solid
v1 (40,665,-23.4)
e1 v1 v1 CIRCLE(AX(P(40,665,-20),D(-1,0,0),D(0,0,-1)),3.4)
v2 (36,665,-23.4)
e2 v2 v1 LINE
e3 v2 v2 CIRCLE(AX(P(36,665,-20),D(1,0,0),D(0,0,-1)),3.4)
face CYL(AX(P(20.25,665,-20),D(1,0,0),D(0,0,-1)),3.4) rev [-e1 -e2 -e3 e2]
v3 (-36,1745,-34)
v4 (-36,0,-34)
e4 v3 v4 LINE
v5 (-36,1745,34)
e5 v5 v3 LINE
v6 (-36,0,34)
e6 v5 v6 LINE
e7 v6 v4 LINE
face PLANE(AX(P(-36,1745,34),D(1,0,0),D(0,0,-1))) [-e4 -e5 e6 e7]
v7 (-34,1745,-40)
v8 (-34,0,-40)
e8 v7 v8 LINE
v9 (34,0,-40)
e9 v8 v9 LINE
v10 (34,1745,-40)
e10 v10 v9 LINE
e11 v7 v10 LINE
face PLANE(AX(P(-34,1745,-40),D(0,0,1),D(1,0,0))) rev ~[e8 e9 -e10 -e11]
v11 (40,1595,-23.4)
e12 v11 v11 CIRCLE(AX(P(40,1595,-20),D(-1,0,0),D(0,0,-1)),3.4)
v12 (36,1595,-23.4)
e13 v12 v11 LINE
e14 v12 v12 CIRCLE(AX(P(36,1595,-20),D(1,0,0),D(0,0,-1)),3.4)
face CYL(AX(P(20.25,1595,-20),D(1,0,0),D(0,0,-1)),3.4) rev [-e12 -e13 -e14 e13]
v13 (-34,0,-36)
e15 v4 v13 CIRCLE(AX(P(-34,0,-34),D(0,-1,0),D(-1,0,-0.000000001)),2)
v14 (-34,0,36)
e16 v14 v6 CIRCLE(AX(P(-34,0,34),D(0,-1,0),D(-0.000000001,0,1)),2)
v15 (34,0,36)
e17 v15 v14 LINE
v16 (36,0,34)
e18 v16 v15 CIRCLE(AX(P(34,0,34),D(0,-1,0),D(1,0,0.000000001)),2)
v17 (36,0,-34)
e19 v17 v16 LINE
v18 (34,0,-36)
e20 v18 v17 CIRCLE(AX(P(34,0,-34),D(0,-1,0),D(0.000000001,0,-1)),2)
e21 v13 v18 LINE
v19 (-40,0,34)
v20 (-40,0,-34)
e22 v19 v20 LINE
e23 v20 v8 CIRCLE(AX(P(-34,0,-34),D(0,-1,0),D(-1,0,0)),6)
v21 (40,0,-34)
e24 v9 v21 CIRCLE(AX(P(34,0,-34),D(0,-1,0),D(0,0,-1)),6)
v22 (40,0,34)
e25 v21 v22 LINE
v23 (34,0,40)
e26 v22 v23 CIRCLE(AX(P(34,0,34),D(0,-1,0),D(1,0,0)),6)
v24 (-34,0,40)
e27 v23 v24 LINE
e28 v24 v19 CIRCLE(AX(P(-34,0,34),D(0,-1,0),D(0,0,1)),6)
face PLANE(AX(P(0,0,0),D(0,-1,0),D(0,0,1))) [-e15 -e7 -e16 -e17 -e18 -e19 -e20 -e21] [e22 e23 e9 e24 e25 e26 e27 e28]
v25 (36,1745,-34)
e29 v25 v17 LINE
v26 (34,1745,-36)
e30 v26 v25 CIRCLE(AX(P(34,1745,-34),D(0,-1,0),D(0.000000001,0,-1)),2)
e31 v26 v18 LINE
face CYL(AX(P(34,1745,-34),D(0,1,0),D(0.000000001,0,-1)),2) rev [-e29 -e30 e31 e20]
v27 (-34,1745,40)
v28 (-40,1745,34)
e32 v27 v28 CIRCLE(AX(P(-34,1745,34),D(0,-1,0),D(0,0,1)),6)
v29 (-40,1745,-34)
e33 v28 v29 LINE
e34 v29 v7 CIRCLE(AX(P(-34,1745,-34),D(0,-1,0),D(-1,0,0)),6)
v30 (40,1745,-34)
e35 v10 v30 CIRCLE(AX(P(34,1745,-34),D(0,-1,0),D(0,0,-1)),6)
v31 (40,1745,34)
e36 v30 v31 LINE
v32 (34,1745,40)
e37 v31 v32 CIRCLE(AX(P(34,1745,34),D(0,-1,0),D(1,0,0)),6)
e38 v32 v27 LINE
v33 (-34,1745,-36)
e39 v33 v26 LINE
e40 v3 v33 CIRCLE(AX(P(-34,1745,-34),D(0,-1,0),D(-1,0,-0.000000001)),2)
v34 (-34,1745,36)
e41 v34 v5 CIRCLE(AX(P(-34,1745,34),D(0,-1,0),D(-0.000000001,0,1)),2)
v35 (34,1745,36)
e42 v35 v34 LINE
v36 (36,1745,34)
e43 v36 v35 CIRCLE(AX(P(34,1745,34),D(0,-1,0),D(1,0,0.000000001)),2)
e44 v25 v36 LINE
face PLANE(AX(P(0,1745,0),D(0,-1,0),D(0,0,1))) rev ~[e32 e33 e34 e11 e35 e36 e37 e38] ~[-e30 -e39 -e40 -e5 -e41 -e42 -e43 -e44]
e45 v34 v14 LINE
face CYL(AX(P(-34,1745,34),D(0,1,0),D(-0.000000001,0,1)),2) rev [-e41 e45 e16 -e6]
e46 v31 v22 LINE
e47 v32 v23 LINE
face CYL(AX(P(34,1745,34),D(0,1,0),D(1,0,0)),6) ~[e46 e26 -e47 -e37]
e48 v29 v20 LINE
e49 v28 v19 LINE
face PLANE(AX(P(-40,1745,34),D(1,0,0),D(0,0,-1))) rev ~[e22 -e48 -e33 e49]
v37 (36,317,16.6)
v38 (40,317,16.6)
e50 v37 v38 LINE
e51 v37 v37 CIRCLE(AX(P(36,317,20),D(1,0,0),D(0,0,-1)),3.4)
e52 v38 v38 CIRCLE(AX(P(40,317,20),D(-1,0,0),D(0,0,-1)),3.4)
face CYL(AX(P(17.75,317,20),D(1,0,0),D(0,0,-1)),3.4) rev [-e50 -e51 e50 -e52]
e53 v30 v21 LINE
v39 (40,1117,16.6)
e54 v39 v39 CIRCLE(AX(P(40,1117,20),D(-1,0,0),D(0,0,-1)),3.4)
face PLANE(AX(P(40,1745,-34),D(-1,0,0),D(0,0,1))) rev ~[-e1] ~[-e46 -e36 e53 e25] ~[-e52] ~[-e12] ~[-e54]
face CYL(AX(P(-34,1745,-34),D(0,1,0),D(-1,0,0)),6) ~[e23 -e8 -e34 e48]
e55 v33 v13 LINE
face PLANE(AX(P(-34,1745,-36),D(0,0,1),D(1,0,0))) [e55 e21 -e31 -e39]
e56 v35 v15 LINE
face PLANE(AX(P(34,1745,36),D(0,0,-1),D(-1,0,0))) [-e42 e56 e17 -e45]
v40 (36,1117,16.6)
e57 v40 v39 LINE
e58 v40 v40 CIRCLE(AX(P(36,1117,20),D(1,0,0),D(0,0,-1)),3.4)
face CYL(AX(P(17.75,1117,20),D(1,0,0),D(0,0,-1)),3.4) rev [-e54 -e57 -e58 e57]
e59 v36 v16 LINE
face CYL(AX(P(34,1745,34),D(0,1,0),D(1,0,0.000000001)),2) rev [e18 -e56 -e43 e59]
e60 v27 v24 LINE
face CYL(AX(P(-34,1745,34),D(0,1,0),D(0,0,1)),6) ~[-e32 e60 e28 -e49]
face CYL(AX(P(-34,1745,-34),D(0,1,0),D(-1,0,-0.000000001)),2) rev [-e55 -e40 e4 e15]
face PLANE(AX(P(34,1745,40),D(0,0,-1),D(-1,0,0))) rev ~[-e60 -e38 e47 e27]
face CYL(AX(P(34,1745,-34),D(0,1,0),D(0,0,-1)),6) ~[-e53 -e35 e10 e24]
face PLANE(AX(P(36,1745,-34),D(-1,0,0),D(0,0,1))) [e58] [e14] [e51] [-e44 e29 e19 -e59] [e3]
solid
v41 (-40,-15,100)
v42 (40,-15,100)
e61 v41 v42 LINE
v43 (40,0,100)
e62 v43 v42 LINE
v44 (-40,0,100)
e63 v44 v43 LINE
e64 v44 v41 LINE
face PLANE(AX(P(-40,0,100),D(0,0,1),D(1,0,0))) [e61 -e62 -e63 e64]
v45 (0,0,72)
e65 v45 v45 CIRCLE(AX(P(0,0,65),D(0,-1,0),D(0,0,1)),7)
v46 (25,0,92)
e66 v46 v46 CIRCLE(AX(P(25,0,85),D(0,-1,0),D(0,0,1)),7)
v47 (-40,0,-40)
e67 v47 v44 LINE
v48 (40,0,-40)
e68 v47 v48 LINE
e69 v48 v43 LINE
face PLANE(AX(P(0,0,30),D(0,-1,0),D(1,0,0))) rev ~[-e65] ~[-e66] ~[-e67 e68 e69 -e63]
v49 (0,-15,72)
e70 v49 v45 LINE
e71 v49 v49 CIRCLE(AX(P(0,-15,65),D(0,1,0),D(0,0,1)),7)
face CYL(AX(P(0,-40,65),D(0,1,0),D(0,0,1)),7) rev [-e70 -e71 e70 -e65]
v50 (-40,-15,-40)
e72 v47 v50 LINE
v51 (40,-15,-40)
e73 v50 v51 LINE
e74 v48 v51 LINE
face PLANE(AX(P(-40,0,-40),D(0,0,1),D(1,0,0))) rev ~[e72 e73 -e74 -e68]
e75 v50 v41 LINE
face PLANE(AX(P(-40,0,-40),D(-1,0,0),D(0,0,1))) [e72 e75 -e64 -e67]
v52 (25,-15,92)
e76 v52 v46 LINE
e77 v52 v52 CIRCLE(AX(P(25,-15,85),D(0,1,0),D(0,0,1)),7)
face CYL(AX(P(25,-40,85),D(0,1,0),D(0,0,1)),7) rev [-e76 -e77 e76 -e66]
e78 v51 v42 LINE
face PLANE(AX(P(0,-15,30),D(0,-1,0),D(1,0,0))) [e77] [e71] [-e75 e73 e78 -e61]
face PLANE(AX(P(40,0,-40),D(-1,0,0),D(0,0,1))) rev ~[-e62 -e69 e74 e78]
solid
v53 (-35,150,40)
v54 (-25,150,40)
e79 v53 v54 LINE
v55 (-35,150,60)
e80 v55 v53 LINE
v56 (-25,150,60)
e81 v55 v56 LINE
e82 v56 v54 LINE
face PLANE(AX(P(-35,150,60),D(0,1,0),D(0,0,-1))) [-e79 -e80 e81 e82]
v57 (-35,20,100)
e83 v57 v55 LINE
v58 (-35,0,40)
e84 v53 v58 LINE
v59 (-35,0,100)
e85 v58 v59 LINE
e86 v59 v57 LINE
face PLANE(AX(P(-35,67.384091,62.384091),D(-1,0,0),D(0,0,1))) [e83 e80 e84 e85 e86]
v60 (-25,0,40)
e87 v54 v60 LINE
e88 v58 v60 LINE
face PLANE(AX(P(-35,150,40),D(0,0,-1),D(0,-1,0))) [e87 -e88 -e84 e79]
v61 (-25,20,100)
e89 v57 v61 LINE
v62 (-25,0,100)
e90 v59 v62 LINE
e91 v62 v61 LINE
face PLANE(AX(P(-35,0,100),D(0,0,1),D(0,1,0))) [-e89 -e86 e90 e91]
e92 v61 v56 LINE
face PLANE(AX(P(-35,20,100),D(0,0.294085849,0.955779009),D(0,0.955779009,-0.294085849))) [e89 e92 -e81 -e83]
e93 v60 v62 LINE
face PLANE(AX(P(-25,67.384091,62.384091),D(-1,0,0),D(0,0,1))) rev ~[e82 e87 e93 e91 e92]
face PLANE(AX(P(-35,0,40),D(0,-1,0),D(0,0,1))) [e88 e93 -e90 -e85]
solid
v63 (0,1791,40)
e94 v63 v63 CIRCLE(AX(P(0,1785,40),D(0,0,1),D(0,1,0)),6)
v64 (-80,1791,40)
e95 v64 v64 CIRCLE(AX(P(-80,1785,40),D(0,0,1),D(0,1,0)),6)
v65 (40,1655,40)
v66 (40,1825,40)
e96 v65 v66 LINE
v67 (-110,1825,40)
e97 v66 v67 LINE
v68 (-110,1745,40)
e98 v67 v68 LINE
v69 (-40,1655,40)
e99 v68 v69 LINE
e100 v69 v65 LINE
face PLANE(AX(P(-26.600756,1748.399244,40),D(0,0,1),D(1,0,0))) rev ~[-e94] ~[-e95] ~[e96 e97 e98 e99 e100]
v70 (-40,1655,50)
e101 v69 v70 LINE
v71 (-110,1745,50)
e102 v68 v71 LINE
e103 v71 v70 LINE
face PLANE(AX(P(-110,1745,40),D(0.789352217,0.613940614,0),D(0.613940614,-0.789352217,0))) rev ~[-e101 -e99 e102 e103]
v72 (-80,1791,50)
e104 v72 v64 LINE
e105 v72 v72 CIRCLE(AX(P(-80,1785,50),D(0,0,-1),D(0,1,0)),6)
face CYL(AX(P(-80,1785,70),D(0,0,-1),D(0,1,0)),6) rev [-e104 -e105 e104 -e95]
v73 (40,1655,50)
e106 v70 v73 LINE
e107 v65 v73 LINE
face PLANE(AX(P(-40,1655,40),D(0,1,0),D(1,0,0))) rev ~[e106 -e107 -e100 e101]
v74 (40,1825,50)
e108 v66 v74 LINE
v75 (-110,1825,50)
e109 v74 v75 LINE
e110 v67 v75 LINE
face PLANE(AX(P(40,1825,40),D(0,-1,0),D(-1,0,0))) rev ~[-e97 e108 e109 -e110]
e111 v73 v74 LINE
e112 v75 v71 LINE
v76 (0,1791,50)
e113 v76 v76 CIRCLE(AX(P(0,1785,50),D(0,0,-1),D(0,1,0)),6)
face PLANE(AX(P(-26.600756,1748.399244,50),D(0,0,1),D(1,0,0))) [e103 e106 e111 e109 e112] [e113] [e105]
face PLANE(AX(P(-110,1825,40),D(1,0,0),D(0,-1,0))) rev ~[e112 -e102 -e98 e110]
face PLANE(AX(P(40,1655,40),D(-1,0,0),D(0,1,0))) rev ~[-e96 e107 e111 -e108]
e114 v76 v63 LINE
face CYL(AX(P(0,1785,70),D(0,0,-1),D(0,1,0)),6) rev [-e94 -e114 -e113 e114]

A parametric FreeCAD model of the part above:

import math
import FreeCAD as App
import Part
import Sketcher
Q = App.Units.Quantity

doc = App.newDocument("Part")
params = doc.addObject("Spreadsheet::Sheet", "Params")
for row, (alias, value) in enumerate([
    ("sketch1_radius", "6 mm"),
    ("sketch1_radius2", "2 mm"),
    ("sketch1_width", "68 mm"),
    ("pad1_length", "1745 mm"),
    ("sketch2_height", "3.4 mm"),
    ("sketch2_width", "19.75 mm"),
    ("groove_angle", "360 deg"),
    ("linearpattern_pitch", "930 mm"),
    ("sketch3_height", "3.4 mm"),
    ("sketch3_width", "22.25 mm"),
    ("groove2_angle", "360 deg"),
    ("linearpattern2_pitch", "800 mm"),
    ("sketch4_width", "80 mm"),
    ("sketch4_height", "140 mm"),
    ("pad2_length", "15 mm"),
    ("sketch5_width", "40 mm"),
    ("sketch5_height", "7 mm"),
    ("groove3_angle", "360 deg"),
    ("linearpattern3_pitch", "32.015621 mm"),
    ("sketch6_width", "20 mm"),
    ("sketch6_width2", "150 mm"),
    ("sketch6_height", "60 mm"),
    ("pad3_length", "10 mm"),
    ("sketch7_width", "150 mm"),
    ("sketch7_width2", "80 mm"),
    ("sketch7_height", "170 mm"),
    ("pad4_length", "10 mm"),
    ("sketch8_width", "6 mm"),
    ("sketch8_height", "30 mm"),
    ("groove4_angle", "360 deg"),
    ("linearpattern4_pitch", "80 mm"),
], start=1):
    params.set(f"A{row}", alias)
    params.set(f"B{row}", "=" + value)
    params.setAlias(f"B{row}", alias)

body = doc.addObject("PartDesign::Body", "Body")

sketch1 = doc.addObject("Sketcher::SketchObject", "Sketch")
body.addObject(sketch1)
sketch1.AttachmentSupport = (doc.XZ_Plane, [""])
sketch1.MapMode = "FlatFace"
sketch1.AttachmentOffset = App.Placement(App.Vector(0, 0, -1745), App.Rotation())
sketch1.addGeometry(Part.LineSegment(App.Vector(40, -34, 0), App.Vector(40, 34, 0)), False)
sketch1.addGeometry(Part.ArcOfCircle(Part.Circle(App.Vector(34, 34, 0), App.Vector(0, 0, 1), 6), math.radians(0), math.radians(90)), False)
sketch1.addGeometry(Part.LineSegment(App.Vector(34, 40, 0), App.Vector(-34, 40, 0)), False)
sketch1.addGeometry(Part.ArcOfCircle(Part.Circle(App.Vector(-34, 34, 0), App.Vector(0, 0, 1), 6), math.radians(90), math.radians(180)), False)
sketch1.addGeometry(Part.LineSegment(App.Vector(-40, 34, 0), App.Vector(-40, -34, 0)), False)
sketch1.addGeometry(Part.ArcOfCircle(Part.Circle(App.Vector(-34, -34, 0), App.Vector(0, 0, 1), 6), math.radians(180), math.radians(270)), False)
sketch1.addGeometry(Part.LineSegment(App.Vector(-34, -40, 0), App.Vector(34, -40, 0)), False)
sketch1.addGeometry(Part.ArcOfCircle(Part.Circle(App.Vector(34, -34, 0), App.Vector(0, 0, 1), 6), math.radians(-90), math.radians(0)), False)
sketch1.addGeometry(Part.LineSegment(App.Vector(36, 34, 0), App.Vector(36, -34, 0)), False)
sketch1.addGeometry(Part.ArcOfCircle(Part.Circle(App.Vector(34, -34, 0), App.Vector(0, 0, 1), 2), math.radians(-90), math.radians(0)), False)
sketch1.addGeometry(Part.LineSegment(App.Vector(34, -36, 0), App.Vector(-34, -36, 0)), False)
sketch1.addGeometry(Part.ArcOfCircle(Part.Circle(App.Vector(-34, -34, 0), App.Vector(0, 0, 1), 2), math.radians(-180), math.radians(-90)), False)
sketch1.addGeometry(Part.LineSegment(App.Vector(-36, -34, 0), App.Vector(-36, 34, 0)), False)
sketch1.addGeometry(Part.ArcOfCircle(Part.Circle(App.Vector(-34, 34, 0), App.Vector(0, 0, 1), 2), math.radians(90), math.radians(180)), False)
sketch1.addGeometry(Part.LineSegment(App.Vector(-34, 36, 0), App.Vector(34, 36, 0)), False)
sketch1.addGeometry(Part.ArcOfCircle(Part.Circle(App.Vector(34, 34, 0), App.Vector(0, 0, 1), 2), math.radians(0), math.radians(90)), False)
sketch1.addConstraint(Sketcher.Constraint("Tangent", 0, 2, 1, 1))
sketch1.addConstraint(Sketcher.Constraint("Tangent", 1, 2, 2, 1))
sketch1.addConstraint(Sketcher.Constraint("Tangent", 2, 2, 3, 1))
sketch1.addConstraint(Sketcher.Constraint("Tangent", 3, 2, 4, 1))
sketch1.addConstraint(Sketcher.Constraint("Tangent", 4, 2, 5, 1))
sketch1.addConstraint(Sketcher.Constraint("Tangent", 5, 2, 6, 1))
sketch1.addConstraint(Sketcher.Constraint("Tangent", 6, 2, 7, 1))
sketch1.addConstraint(Sketcher.Constraint("Tangent", 7, 2, 0, 1))
sketch1.addConstraint(Sketcher.Constraint("Tangent", 8, 2, 9, 2))
sketch1.addConstraint(Sketcher.Constraint("Tangent", 9, 1, 10, 1))
sketch1.addConstraint(Sketcher.Constraint("Tangent", 10, 2, 11, 2))
sketch1.addConstraint(Sketcher.Constraint("Tangent", 11, 1, 12, 1))
sketch1.addConstraint(Sketcher.Constraint("Tangent", 12, 2, 13, 2))
sketch1.addConstraint(Sketcher.Constraint("Tangent", 13, 1, 14, 1))
sketch1.addConstraint(Sketcher.Constraint("Tangent", 14, 2, 15, 2))
sketch1.addConstraint(Sketcher.Constraint("Tangent", 15, 1, 8, 1))
sketch1.addConstraint(Sketcher.Constraint("Vertical", 0))
sketch1.addConstraint(Sketcher.Constraint("Horizontal", 2))
sketch1.addConstraint(Sketcher.Constraint("Vertical", 4))
sketch1.addConstraint(Sketcher.Constraint("Horizontal", 6))
sketch1.addConstraint(Sketcher.Constraint("Vertical", 8))
sketch1.addConstraint(Sketcher.Constraint("Horizontal", 10))
sketch1.addConstraint(Sketcher.Constraint("Vertical", 12))
sketch1.addConstraint(Sketcher.Constraint("Horizontal", 14))
sketch1.addConstraint(Sketcher.Constraint("Coincident", 9, 3, 7, 3))
sketch1.addConstraint(Sketcher.Constraint("Coincident", 11, 3, 5, 3))
sketch1.addConstraint(Sketcher.Constraint("Coincident", 13, 3, 3, 3))
sketch1.addConstraint(Sketcher.Constraint("Equal", 1, 3))
sketch1.addConstraint(Sketcher.Constraint("Equal", 3, 5))
sketch1.addConstraint(Sketcher.Constraint("Equal", 5, 7))
sketch1.addConstraint(Sketcher.Constraint("Equal", 13, 15))
sketch1.addConstraint(Sketcher.Constraint("Symmetric", 1, 3, 5, 3, -1, 1))
sketch1.addConstraint(Sketcher.Constraint("Equal", 14, 0))
sketch1.addConstraint(Sketcher.Constraint("Radius", 1, Q("6 mm")))
sketch1.addConstraint(Sketcher.Constraint("Radius", 9, Q("2 mm")))
sketch1.addConstraint(Sketcher.Constraint("DistanceX", 2, 2, 2, 1, Q("68 mm")))
sketch1.setExpression("Constraints[33]", "Params.sketch1_radius")
sketch1.setExpression("Constraints[34]", "Params.sketch1_radius2")
sketch1.setExpression("Constraints[35]", "Params.sketch1_width")
pad1 = doc.addObject("PartDesign::Pad", "Pad")
body.addObject(pad1)
pad1.Profile = sketch1
pad1.setExpression("Length", "Params.pad1_length")

sketch2 = doc.addObject("Sketcher::SketchObject", "Sketch001")
body.addObject(sketch2)
sketch2.AttachmentSupport = (doc.XZ_Plane, [""])
sketch2.MapMode = "FlatFace"
sketch2.AttachmentOffset = App.Placement(App.Vector(0, 0, -1595), App.Rotation())
sketch2.addGeometry(Part.LineSegment(App.Vector(18.2, -20, 0), App.Vector(40, -20, 0)), False)
sketch2.addGeometry(Part.LineSegment(App.Vector(40, -20, 0), App.Vector(40, -23.4, 0)), False)
sketch2.addGeometry(Part.LineSegment(App.Vector(40, -23.4, 0), App.Vector(20.2, -23.4, 0)), False)
sketch2.addGeometry(Part.LineSegment(App.Vector(20.2, -23.4, 0), App.Vector(18.2, -20, 0)), False)
sketch2.addGeometry(Part.LineSegment(App.Vector(40, -20, 0), App.Vector(18.2, -20, 0)), True)
sketch2.addConstraint(Sketcher.Constraint("Coincident", 0, 2, 1, 1))
sketch2.addConstraint(Sketcher.Constraint("Coincident", 1, 2, 2, 1))
sketch2.addConstraint(Sketcher.Constraint("Coincident", 2, 2, 3, 1))
sketch2.addConstraint(Sketcher.Constraint("Coincident", 3, 2, 0, 1))
sketch2.addConstraint(Sketcher.Constraint("Horizontal", 0))
sketch2.addConstraint(Sketcher.Constraint("Vertical", 1))
sketch2.addConstraint(Sketcher.Constraint("Horizontal", 2))
sketch2.addConstraint(Sketcher.Constraint("Horizontal", 4))
sketch2.addConstraint(Sketcher.Constraint("Coincident", 4, 1, 0, 2))
sketch2.addConstraint(Sketcher.Constraint("Equal", 0, 4))
sketch2.addConstraint(Sketcher.Constraint("Angle", 3, Q("121 deg")))
sketch2.addConstraint(Sketcher.Constraint("DistanceY", 1, 2, 1, 1, Q("3.4 mm")))
sketch2.addConstraint(Sketcher.Constraint("DistanceX", -1, 1, 0, 2, Q("40 mm")))
sketch2.addConstraint(Sketcher.Constraint("DistanceY", 0, 2, -1, 1, Q("20 mm")))
sketch2.addConstraint(Sketcher.Constraint("DistanceX", 2, 2, 2, 1, Q("19.75 mm")))
sketch2.setExpression("Constraints[11]", "Params.sketch2_height")
sketch2.setExpression("Constraints[14]", "Params.sketch2_width")
groove = doc.addObject("PartDesign::Groove", "Groove")
body.addObject(groove)
groove.Profile = sketch2
groove.ReferenceAxis = (sketch2, ["Axis0"])
groove.setExpression("Angle", "Params.groove_angle")
doc.recompute()

linearpattern = doc.addObject("PartDesign::LinearPattern", "LinearPattern")
body.addObject(linearpattern)
linearpattern.Originals = [groove]
linearpattern.Direction = (doc.Y_Axis, [""])
linearpattern.Mode = "offset"
linearpattern.setExpression("Offset", "Params.linearpattern_pitch")
linearpattern.Occurrences = 2
linearpattern.Reversed = True
body.Tip = linearpattern

sketch3 = doc.addObject("Sketcher::SketchObject", "Sketch002")
body.addObject(sketch3)
sketch3.AttachmentSupport = (doc.XZ_Plane, [""])
sketch3.MapMode = "FlatFace"
sketch3.AttachmentOffset = App.Placement(App.Vector(0, 0, -1117), App.Rotation())
sketch3.addGeometry(Part.LineSegment(App.Vector(15.7, 20, 0), App.Vector(40, 20, 0)), False)
sketch3.addGeometry(Part.LineSegment(App.Vector(40, 20, 0), App.Vector(40, 16.6, 0)), False)
sketch3.addGeometry(Part.LineSegment(App.Vector(40, 16.6, 0), App.Vector(17.8, 16.6, 0)), False)
sketch3.addGeometry(Part.LineSegment(App.Vector(17.8, 16.6, 0), App.Vector(15.7, 20, 0)), False)
sketch3.addGeometry(Part.LineSegment(App.Vector(40, 20, 0), App.Vector(15.7, 20, 0)), True)
sketch3.addConstraint(Sketcher.Constraint("Coincident", 0, 2, 1, 1))
sketch3.addConstraint(Sketcher.Constraint("Coincident", 1, 2, 2, 1))
sketch3.addConstraint(Sketcher.Constraint("Coincident", 2, 2, 3, 1))
sketch3.addConstraint(Sketcher.Constraint("Coincident", 3, 2, 0, 1))
sketch3.addConstraint(Sketcher.Constraint("Horizontal", 0))
sketch3.addConstraint(Sketcher.Constraint("Vertical", 1))
sketch3.addConstraint(Sketcher.Constraint("Horizontal", 2))
sketch3.addConstraint(Sketcher.Constraint("Horizontal", 4))
sketch3.addConstraint(Sketcher.Constraint("Coincident", 4, 1, 0, 2))
sketch3.addConstraint(Sketcher.Constraint("Equal", 0, 4))
sketch3.addConstraint(Sketcher.Constraint("Angle", 3, Q("121 deg")))
sketch3.addConstraint(Sketcher.Constraint("DistanceY", 1, 2, 1, 1, Q("3.4 mm")))
sketch3.addConstraint(Sketcher.Constraint("DistanceX", -1, 1, 0, 2, Q("40 mm")))
sketch3.addConstraint(Sketcher.Constraint("DistanceY", -1, 1, 0, 2, Q("20 mm")))
sketch3.addConstraint(Sketcher.Constraint("DistanceX", 2, 2, 2, 1, Q("22.25 mm")))
sketch3.setExpression("Constraints[11]", "Params.sketch3_height")
sketch3.setExpression("Constraints[14]", "Params.sketch3_width")
groove2 = doc.addObject("PartDesign::Groove", "Groove001")
body.addObject(groove2)
groove2.Profile = sketch3
groove2.ReferenceAxis = (sketch3, ["Axis0"])
groove2.setExpression("Angle", "Params.groove2_angle")
doc.recompute()

linearpattern2 = doc.addObject("PartDesign::LinearPattern", "LinearPattern001")
body.addObject(linearpattern2)
linearpattern2.Originals = [groove2]
linearpattern2.Direction = (doc.Y_Axis, [""])
linearpattern2.Mode = "offset"
linearpattern2.setExpression("Offset", "Params.linearpattern2_pitch")
linearpattern2.Occurrences = 2
linearpattern2.Reversed = True
body.Tip = linearpattern2
body2 = doc.addObject("PartDesign::Body", "Body001")

sketch4 = doc.addObject("Sketcher::SketchObject", "Sketch003")
body2.addObject(sketch4)
sketch4.AttachmentSupport = (doc.getObject("XZ_Plane001"), [""])
sketch4.MapMode = "FlatFace"
sketch4.addGeometry(Part.LineSegment(App.Vector(-40, 100, 0), App.Vector(-40, -40, 0)), False)
sketch4.addGeometry(Part.LineSegment(App.Vector(-40, -40, 0), App.Vector(40, -40, 0)), False)
sketch4.addGeometry(Part.LineSegment(App.Vector(40, -40, 0), App.Vector(40, 100, 0)), False)
sketch4.addGeometry(Part.LineSegment(App.Vector(40, 100, 0), App.Vector(-40, 100, 0)), False)
sketch4.addConstraint(Sketcher.Constraint("Coincident", 0, 2, 1, 1))
sketch4.addConstraint(Sketcher.Constraint("Coincident", 1, 2, 2, 1))
sketch4.addConstraint(Sketcher.Constraint("Coincident", 2, 2, 3, 1))
sketch4.addConstraint(Sketcher.Constraint("Coincident", 3, 2, 0, 1))
sketch4.addConstraint(Sketcher.Constraint("Vertical", 0))
sketch4.addConstraint(Sketcher.Constraint("Horizontal", 1))
sketch4.addConstraint(Sketcher.Constraint("Vertical", 2))
sketch4.addConstraint(Sketcher.Constraint("Horizontal", 3))
sketch4.addConstraint(Sketcher.Constraint("DistanceX", 1, 1, 1, 2, Q("80 mm")))
sketch4.addConstraint(Sketcher.Constraint("DistanceY", 0, 2, 0, 1, Q("140 mm")))
sketch4.addConstraint(Sketcher.Constraint("DistanceX", 0, 2, -1, 1, Q("40 mm")))
sketch4.addConstraint(Sketcher.Constraint("DistanceY", 0, 2, -1, 1, Q("40 mm")))
sketch4.setExpression("Constraints[8]", "Params.sketch4_width")
sketch4.setExpression("Constraints[9]", "Params.sketch4_height")
pad2 = doc.addObject("PartDesign::Pad", "Pad001")
body2.addObject(pad2)
pad2.Profile = sketch4
pad2.setExpression("Length", "Params.pad2_length")

sketch5 = doc.addObject("Sketcher::SketchObject", "Sketch004")
body2.addObject(sketch5)
sketch5.AttachmentSupport = (doc.getObject("YZ_Plane001"), [""])
sketch5.MapMode = "FlatFace"
sketch5.AttachmentOffset = App.Placement(App.Vector(0, 0, 25), App.Rotation())
sketch5.addGeometry(Part.LineSegment(App.Vector(-44, 85, 0), App.Vector(0, 85, 0)), False)
sketch5.addGeometry(Part.LineSegment(App.Vector(0, 85, 0), App.Vector(0, 92, 0)), False)
sketch5.addGeometry(Part.LineSegment(App.Vector(0, 92, 0), App.Vector(-40, 92, 0)), False)
sketch5.addGeometry(Part.LineSegment(App.Vector(-40, 92, 0), App.Vector(-44, 85, 0)), False)
sketch5.addGeometry(Part.LineSegment(App.Vector(0, 85, 0), App.Vector(-44, 85, 0)), True)
sketch5.addConstraint(Sketcher.Constraint("Coincident", 0, 2, 1, 1))
sketch5.addConstraint(Sketcher.Constraint("Coincident", 1, 2, 2, 1))
sketch5.addConstraint(Sketcher.Constraint("Coincident", 2, 2, 3, 1))
sketch5.addConstraint(Sketcher.Constraint("Coincident", 3, 2, 0, 1))
sketch5.addConstraint(Sketcher.Constraint("Horizontal", 0))
sketch5.addConstraint(Sketcher.Constraint("Vertical", 1))
sketch5.addConstraint(Sketcher.Constraint("Horizontal", 2))
sketch5.addConstraint(Sketcher.Constraint("Horizontal", 4))
sketch5.addConstraint(Sketcher.Constraint("Coincident", 4, 1, 0, 2))
sketch5.addConstraint(Sketcher.Constraint("PointOnObject", 0, 2, -2))
sketch5.addConstraint(Sketcher.Constraint("Equal", 0, 4))
sketch5.addConstraint(Sketcher.Constraint("DistanceX", 2, 2, 2, 1, Q("40 mm")))
sketch5.addConstraint(Sketcher.Constraint("DistanceY", 1, 1, 1, 2, Q("7 mm")))
sketch5.addConstraint(Sketcher.Constraint("Angle", 3, Q("-121 deg")))
sketch5.addConstraint(Sketcher.Constraint("DistanceY", -1, 1, 0, 2, Q("85 mm")))
sketch5.setExpression("Constraints[11]", "Params.sketch5_width")
sketch5.setExpression("Constraints[12]", "Params.sketch5_height")
groove3 = doc.addObject("PartDesign::Groove", "Groove002")
body2.addObject(groove3)
groove3.Profile = sketch5
groove3.ReferenceAxis = (sketch5, ["Axis0"])
groove3.setExpression("Angle", "Params.groove3_angle")
doc.recompute()

datumline = doc.addObject("PartDesign::Line", "DatumLine")
body2.addObject(datumline)
datumline.Placement = App.Placement(App.Vector(0, 0, 0), App.Rotation(App.Vector(0, 0, 1), App.Vector(-0.780868809, 0, -0.624695048)))
linearpattern3 = doc.addObject("PartDesign::LinearPattern", "LinearPattern002")
body2.addObject(linearpattern3)
linearpattern3.Originals = [groove3]
linearpattern3.Direction = (datumline, [""])
linearpattern3.Mode = "offset"
linearpattern3.setExpression("Offset", "Params.linearpattern3_pitch")
linearpattern3.Occurrences = 2
body2.Tip = linearpattern3
body3 = doc.addObject("PartDesign::Body", "Body002")

sketch6 = doc.addObject("Sketcher::SketchObject", "Sketch005")
body3.addObject(sketch6)
sketch6.AttachmentSupport = (doc.getObject("YZ_Plane002"), [""])
sketch6.MapMode = "FlatFace"
sketch6.AttachmentOffset = App.Placement(App.Vector(0, 0, -35), App.Rotation())
sketch6.addGeometry(Part.LineSegment(App.Vector(150, 60, 0), App.Vector(20, 100, 0)), False)
sketch6.addGeometry(Part.LineSegment(App.Vector(20, 100, 0), App.Vector(0, 100, 0)), False)
sketch6.addGeometry(Part.LineSegment(App.Vector(0, 100, 0), App.Vector(0, 40, 0)), False)
sketch6.addGeometry(Part.LineSegment(App.Vector(0, 40, 0), App.Vector(150, 40, 0)), False)
sketch6.addGeometry(Part.LineSegment(App.Vector(150, 40, 0), App.Vector(150, 60, 0)), False)
sketch6.addConstraint(Sketcher.Constraint("Coincident", 0, 2, 1, 1))
sketch6.addConstraint(Sketcher.Constraint("Coincident", 1, 2, 2, 1))
sketch6.addConstraint(Sketcher.Constraint("Coincident", 2, 2, 3, 1))
sketch6.addConstraint(Sketcher.Constraint("Coincident", 3, 2, 4, 1))
sketch6.addConstraint(Sketcher.Constraint("Coincident", 4, 2, 0, 1))
sketch6.addConstraint(Sketcher.Constraint("Horizontal", 1))
sketch6.addConstraint(Sketcher.Constraint("Vertical", 2))
sketch6.addConstraint(Sketcher.Constraint("Horizontal", 3))
sketch6.addConstraint(Sketcher.Constraint("Vertical", 4))
sketch6.addConstraint(Sketcher.Constraint("PointOnObject", 1, 2, -2))
sketch6.addConstraint(Sketcher.Constraint("Equal", 1, 4))
sketch6.addConstraint(Sketcher.Constraint("DistanceX", 1, 2, 1, 1, Q("20 mm")))
sketch6.addConstraint(Sketcher.Constraint("DistanceX", 3, 1, 3, 2, Q("150 mm")))
sketch6.addConstraint(Sketcher.Constraint("DistanceY", 2, 2, 2, 1, Q("60 mm")))
sketch6.addConstraint(Sketcher.Constraint("DistanceY", -1, 1, 0, 2, Q("100 mm")))
sketch6.setExpression("Constraints[11]", "Params.sketch6_width")
sketch6.setExpression("Constraints[12]", "Params.sketch6_width2")
sketch6.setExpression("Constraints[13]", "Params.sketch6_height")
pad3 = doc.addObject("PartDesign::Pad", "Pad002")
body3.addObject(pad3)
pad3.Profile = sketch6
pad3.setExpression("Length", "Params.pad3_length")
body4 = doc.addObject("PartDesign::Body", "Body003")

sketch7 = doc.addObject("Sketcher::SketchObject", "Sketch006")
body4.addObject(sketch7)
sketch7.AttachmentSupport = (doc.getObject("XY_Plane003"), [""])
sketch7.MapMode = "FlatFace"
sketch7.AttachmentOffset = App.Placement(App.Vector(0, 0, 40), App.Rotation())
sketch7.addGeometry(Part.LineSegment(App.Vector(40, 1655, 0), App.Vector(40, 1825, 0)), False)
sketch7.addGeometry(Part.LineSegment(App.Vector(40, 1825, 0), App.Vector(-110, 1825, 0)), False)
sketch7.addGeometry(Part.LineSegment(App.Vector(-110, 1825, 0), App.Vector(-110, 1745, 0)), False)
sketch7.addGeometry(Part.LineSegment(App.Vector(-110, 1745, 0), App.Vector(-40, 1655, 0)), False)
sketch7.addGeometry(Part.LineSegment(App.Vector(-40, 1655, 0), App.Vector(40, 1655, 0)), False)
sketch7.addConstraint(Sketcher.Constraint("Coincident", 0, 2, 1, 1))
sketch7.addConstraint(Sketcher.Constraint("Coincident", 1, 2, 2, 1))
sketch7.addConstraint(Sketcher.Constraint("Coincident", 2, 2, 3, 1))
sketch7.addConstraint(Sketcher.Constraint("Coincident", 3, 2, 4, 1))
sketch7.addConstraint(Sketcher.Constraint("Coincident", 4, 2, 0, 1))
sketch7.addConstraint(Sketcher.Constraint("Vertical", 0))
sketch7.addConstraint(Sketcher.Constraint("Horizontal", 1))
sketch7.addConstraint(Sketcher.Constraint("Vertical", 2))
sketch7.addConstraint(Sketcher.Constraint("Horizontal", 4))
sketch7.addConstraint(Sketcher.Constraint("Equal", 4, 2))
sketch7.addConstraint(Sketcher.Constraint("DistanceX", 1, 2, 1, 1, Q("150 mm")))
sketch7.addConstraint(Sketcher.Constraint("DistanceX", 4, 1, 4, 2, Q("80 mm")))
sketch7.addConstraint(Sketcher.Constraint("DistanceY", 0, 1, 0, 2, Q("170 mm")))
sketch7.addConstraint(Sketcher.Constraint("DistanceX", -1, 1, 0, 2, Q("40 mm")))
sketch7.addConstraint(Sketcher.Constraint("DistanceY", -1, 1, 0, 2, Q("1825 mm")))
sketch7.setExpression("Constraints[10]", "Params.sketch7_width")
sketch7.setExpression("Constraints[11]", "Params.sketch7_width2")
sketch7.setExpression("Constraints[12]", "Params.sketch7_height")
pad4 = doc.addObject("PartDesign::Pad", "Pad003")
body4.addObject(pad4)
pad4.Profile = sketch7
pad4.setExpression("Length", "Params.pad4_length")

sketch8 = doc.addObject("Sketcher::SketchObject", "Sketch007")
body4.addObject(sketch8)
sketch8.AttachmentSupport = (doc.getObject("YZ_Plane003"), [""])
sketch8.MapMode = "FlatFace"
sketch8.addGeometry(Part.LineSegment(App.Vector(1785, 74, 0), App.Vector(1785, 40, 0)), False)
sketch8.addGeometry(Part.LineSegment(App.Vector(1785, 40, 0), App.Vector(1791, 40, 0)), False)
sketch8.addGeometry(Part.LineSegment(App.Vector(1791, 40, 0), App.Vector(1791, 70, 0)), False)
sketch8.addGeometry(Part.LineSegment(App.Vector(1791, 70, 0), App.Vector(1785, 74, 0)), False)
sketch8.addGeometry(Part.LineSegment(App.Vector(1785, 40, 0), App.Vector(1785, 74, 0)), True)
sketch8.addConstraint(Sketcher.Constraint("Coincident", 0, 2, 1, 1))
sketch8.addConstraint(Sketcher.Constraint("Coincident", 1, 2, 2, 1))
sketch8.addConstraint(Sketcher.Constraint("Coincident", 2, 2, 3, 1))
sketch8.addConstraint(Sketcher.Constraint("Coincident", 3, 2, 0, 1))
sketch8.addConstraint(Sketcher.Constraint("Vertical", 0))
sketch8.addConstraint(Sketcher.Constraint("Horizontal", 1))
sketch8.addConstraint(Sketcher.Constraint("Vertical", 2))
sketch8.addConstraint(Sketcher.Constraint("Vertical", 4))
sketch8.addConstraint(Sketcher.Constraint("Coincident", 4, 1, 0, 2))
sketch8.addConstraint(Sketcher.Constraint("Equal", 0, 4))
sketch8.addConstraint(Sketcher.Constraint("DistanceX", 1, 1, 1, 2, Q("6 mm")))
sketch8.addConstraint(Sketcher.Constraint("DistanceY", 2, 1, 2, 2, Q("30 mm")))
sketch8.addConstraint(Sketcher.Constraint("Angle", 3, Q("149 deg")))
sketch8.addConstraint(Sketcher.Constraint("DistanceX", -1, 1, 0, 2, Q("1785 mm")))
sketch8.addConstraint(Sketcher.Constraint("DistanceY", -1, 1, 0, 2, Q("40 mm")))
sketch8.setExpression("Constraints[10]", "Params.sketch8_width")
sketch8.setExpression("Constraints[11]", "Params.sketch8_height")
groove4 = doc.addObject("PartDesign::Groove", "Groove003")
body4.addObject(groove4)
groove4.Profile = sketch8
groove4.ReferenceAxis = (sketch8, ["Axis0"])
groove4.setExpression("Angle", "Params.groove4_angle")
doc.recompute()

linearpattern4 = doc.addObject("PartDesign::LinearPattern", "LinearPattern003")
body4.addObject(linearpattern4)
linearpattern4.Originals = [groove4]
linearpattern4.Direction = (doc.getObject("X_Axis003"), [""])
linearpattern4.Mode = "offset"
linearpattern4.setExpression("Offset", "Params.linearpattern4_pitch")
linearpattern4.Occurrences = 2
linearpattern4.Reversed = True
body4.Tip = linearpattern4

doc.recompute()
